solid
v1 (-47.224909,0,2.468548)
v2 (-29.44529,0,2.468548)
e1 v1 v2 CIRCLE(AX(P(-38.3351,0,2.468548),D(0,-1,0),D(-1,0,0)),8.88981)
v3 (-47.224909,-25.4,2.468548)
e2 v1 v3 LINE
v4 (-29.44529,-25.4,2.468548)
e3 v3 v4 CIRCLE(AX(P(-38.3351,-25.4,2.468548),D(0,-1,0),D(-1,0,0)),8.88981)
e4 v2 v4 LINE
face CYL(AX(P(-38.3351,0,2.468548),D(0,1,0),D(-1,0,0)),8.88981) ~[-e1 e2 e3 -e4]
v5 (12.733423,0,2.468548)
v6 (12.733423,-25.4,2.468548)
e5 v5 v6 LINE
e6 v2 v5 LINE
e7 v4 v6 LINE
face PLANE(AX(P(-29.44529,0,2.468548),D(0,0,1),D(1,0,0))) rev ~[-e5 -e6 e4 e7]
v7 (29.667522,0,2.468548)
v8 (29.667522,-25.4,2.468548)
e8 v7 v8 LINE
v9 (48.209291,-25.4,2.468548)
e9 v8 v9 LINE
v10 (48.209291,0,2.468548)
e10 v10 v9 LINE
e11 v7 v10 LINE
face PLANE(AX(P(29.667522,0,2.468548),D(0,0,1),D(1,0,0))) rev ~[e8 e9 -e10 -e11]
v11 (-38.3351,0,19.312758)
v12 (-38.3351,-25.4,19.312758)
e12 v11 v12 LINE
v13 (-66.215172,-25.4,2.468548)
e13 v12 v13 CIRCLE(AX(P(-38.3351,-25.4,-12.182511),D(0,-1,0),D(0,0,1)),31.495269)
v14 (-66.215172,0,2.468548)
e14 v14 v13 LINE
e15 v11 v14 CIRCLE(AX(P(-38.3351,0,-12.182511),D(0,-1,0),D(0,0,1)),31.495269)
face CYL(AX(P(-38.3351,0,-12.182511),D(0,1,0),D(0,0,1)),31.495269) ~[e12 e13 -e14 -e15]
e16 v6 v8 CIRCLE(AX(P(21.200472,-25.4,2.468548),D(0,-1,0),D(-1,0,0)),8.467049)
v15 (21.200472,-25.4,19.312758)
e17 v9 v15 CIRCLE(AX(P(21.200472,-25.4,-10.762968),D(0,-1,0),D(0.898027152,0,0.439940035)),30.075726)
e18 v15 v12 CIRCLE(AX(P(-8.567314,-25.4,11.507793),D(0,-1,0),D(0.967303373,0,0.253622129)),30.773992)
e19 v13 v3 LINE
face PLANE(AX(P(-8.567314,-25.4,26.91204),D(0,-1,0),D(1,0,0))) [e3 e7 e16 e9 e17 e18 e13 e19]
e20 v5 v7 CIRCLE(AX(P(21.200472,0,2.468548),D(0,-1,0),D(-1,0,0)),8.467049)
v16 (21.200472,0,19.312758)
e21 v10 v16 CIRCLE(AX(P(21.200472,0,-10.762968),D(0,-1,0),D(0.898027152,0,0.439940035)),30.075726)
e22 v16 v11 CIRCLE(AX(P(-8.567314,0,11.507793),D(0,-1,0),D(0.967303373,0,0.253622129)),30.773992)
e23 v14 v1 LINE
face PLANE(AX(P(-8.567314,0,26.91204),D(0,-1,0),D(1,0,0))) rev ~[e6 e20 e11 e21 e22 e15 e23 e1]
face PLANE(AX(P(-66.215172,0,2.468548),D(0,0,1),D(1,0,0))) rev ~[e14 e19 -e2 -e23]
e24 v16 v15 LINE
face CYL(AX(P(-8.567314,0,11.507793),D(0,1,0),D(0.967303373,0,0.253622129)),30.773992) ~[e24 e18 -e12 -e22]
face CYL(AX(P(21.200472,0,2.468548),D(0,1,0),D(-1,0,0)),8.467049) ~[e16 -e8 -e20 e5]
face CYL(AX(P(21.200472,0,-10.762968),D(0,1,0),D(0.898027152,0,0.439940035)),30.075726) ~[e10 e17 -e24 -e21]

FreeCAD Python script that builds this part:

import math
import FreeCAD as App
import Part
import Sketcher
Q = App.Units.Quantity

doc = App.newDocument("Part")
body = doc.addObject("PartDesign::Body", "Body")

sketch1 = body.newObject("Sketcher::SketchObject", "Sketch")
sketch1.AttachmentSupport = (doc.getObject("XZ_Plane"), [""])
sketch1.MapMode = "FlatFace"
sketch1.addGeometry([
    Part.ArcOfCircle(Part.Circle(App.Vector(-9, 12, 0), App.Vector(0, 0, 1), 31), math.radians(15), math.radians(165)),
    Part.ArcOfCircle(Part.Circle(App.Vector(-38, -12, 0), App.Vector(0, 0, 1), 31), math.radians(90), math.radians(152)),
    Part.LineSegment(App.Vector(-66, 2, 0), App.Vector(-47, 2, 0)),
    Part.ArcOfCircle(Part.Circle(App.Vector(-38, 2, 0), App.Vector(0, 0, 1), 9), math.radians(180), math.radians(360)),
    Part.LineSegment(App.Vector(-29, 2, 0), App.Vector(13, 2, 0)),
    Part.ArcOfCircle(Part.Circle(App.Vector(21, 2, 0), App.Vector(0, 0, 1), 8), math.radians(180), math.radians(360)),
    Part.LineSegment(App.Vector(30, 2, 0), App.Vector(48, 2, 0)),
    Part.ArcOfCircle(Part.Circle(App.Vector(21, -11, 0), App.Vector(0, 0, 1), 30), math.radians(26), math.radians(90)),
], False)
sketch1.addConstraint([
    Sketcher.Constraint("Coincident", 0, 2, 1, 1),
    Sketcher.Constraint("Coincident", 1, 2, 2, 1),
    Sketcher.Constraint("Coincident", 2, 2, 3, 1),
    Sketcher.Constraint("Coincident", 3, 2, 4, 1),
    Sketcher.Constraint("Coincident", 4, 2, 5, 1),
    Sketcher.Constraint("Coincident", 5, 2, 6, 1),
    Sketcher.Constraint("Coincident", 6, 2, 7, 1),
    Sketcher.Constraint("Coincident", 7, 2, 0, 1),
    Sketcher.Constraint("Horizontal", 2),
    Sketcher.Constraint("Horizontal", 4),
    Sketcher.Constraint("Horizontal", 6),
    Sketcher.Constraint("Horizontal", 3, 3, 5, 3),
    Sketcher.Constraint("Horizontal", 5, 3, 1, 2),
    Sketcher.Constraint("Horizontal", 2, 2, 3, 2),
    Sketcher.Constraint("Horizontal", 4, 2, 5, 2),
    Sketcher.Constraint("Horizontal", 0, 2, 7, 2),
    Sketcher.Constraint("Vertical", 1, 3, 3, 3),
    Sketcher.Constraint("Vertical", 5, 3, 7, 3),
    Sketcher.Constraint("Vertical", 3, 3, 0, 2),
    Sketcher.Constraint("Vertical", 5, 3, 7, 2),
    Sketcher.Constraint("Radius", 0, 30.773992),
    Sketcher.Constraint("Radius", 1, 31.495269),
    Sketcher.Constraint("Radius", 3, 8.88981),
    Sketcher.Constraint("Radius", 5, 8.467049),
    Sketcher.Constraint("Radius", 7, 30.075726),
    Sketcher.Constraint("DistanceX", 6, 1, 6, 2, 18.541769),
    Sketcher.Constraint("DistanceX", 1, 3, -1, 1, 38.3351),
    Sketcher.Constraint("DistanceX", 4, 1, 4, 2, 42.178714),
    Sketcher.Constraint("DistanceY", 1, 3, -1, 1, 12.182511),
])
pad1 = body.newObject("PartDesign::Pad", "Pad")
pad1.Profile = sketch1
pad1.Length = Q("1 in")

doc.recompute()
